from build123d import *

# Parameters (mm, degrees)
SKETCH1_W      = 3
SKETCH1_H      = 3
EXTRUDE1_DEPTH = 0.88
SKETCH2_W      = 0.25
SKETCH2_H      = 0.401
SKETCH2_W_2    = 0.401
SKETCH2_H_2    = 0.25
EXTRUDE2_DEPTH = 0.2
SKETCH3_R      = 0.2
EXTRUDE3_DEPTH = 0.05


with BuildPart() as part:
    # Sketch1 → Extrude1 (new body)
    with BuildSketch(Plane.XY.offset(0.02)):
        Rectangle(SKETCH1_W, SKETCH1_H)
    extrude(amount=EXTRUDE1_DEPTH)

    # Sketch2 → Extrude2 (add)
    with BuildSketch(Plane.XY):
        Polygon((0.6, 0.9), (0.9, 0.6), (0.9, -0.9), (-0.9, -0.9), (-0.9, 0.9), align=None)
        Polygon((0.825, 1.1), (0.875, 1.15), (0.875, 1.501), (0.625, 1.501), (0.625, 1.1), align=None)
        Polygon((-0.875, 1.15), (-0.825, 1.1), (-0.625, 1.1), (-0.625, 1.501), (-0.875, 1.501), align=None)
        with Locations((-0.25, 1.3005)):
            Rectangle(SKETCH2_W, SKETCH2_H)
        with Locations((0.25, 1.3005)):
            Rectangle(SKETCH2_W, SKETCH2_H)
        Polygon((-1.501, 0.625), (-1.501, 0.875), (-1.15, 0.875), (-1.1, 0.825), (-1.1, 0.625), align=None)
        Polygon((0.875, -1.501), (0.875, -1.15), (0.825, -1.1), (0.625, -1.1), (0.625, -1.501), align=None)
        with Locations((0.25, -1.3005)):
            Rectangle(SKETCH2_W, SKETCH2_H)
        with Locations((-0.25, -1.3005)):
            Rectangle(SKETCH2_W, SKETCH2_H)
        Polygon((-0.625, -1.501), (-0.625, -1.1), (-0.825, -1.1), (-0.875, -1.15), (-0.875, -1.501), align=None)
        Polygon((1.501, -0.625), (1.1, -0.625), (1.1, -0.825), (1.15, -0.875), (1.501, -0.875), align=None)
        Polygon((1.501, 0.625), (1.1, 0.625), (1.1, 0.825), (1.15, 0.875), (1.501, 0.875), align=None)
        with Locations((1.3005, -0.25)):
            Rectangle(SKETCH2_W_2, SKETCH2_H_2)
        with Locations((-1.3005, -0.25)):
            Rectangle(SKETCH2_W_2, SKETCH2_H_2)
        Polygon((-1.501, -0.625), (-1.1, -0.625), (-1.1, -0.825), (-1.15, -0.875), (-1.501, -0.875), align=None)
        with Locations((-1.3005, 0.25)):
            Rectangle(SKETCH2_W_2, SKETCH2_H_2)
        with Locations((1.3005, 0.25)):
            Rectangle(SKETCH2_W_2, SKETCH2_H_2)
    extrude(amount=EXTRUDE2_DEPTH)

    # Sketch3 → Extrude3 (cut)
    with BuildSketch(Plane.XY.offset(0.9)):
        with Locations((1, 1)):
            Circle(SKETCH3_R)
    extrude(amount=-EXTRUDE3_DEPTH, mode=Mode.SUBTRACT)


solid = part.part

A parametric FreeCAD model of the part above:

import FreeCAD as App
import Part
import Sketcher
from FreeCAD import Vector


def add_polygon(sketch, points):
    """Adds a closed chain of lines whose ends are joined by coincident constraints."""
    first, n = sketch.GeometryCount, len(points)
    for a, b in zip(points, points[1:] + points[:1]):
        sketch.addGeometry(Part.LineSegment(App.Vector(*a, 0), App.Vector(*b, 0)), False)
    for i in range(n):
        sketch.addConstraint(Sketcher.Constraint("Coincident", first + i, 2, first + (i + 1) % n, 1))

doc = App.newDocument("Part")
params = doc.addObject("Spreadsheet::Sheet", "Params")
for row, (alias, value) in enumerate([
    ("sketch1_width", "3 mm"),
    ("pad1_length", "0.88 mm"),
    ("sketch2_width", "1.5 mm"),
    ("sketch2_width2", "1.8 mm"),
    ("sketch2_width3", "0.2 mm"),
    ("sketch2_width4", "0.25 mm"),
    ("pad2_length", "0.2 mm"),
    ("sketch3_diameter", "0.4 mm"),
    ("pocket1_length", "0.05 mm"),
], start=1):
    params.set(f"A{row}", alias)
    params.set(f"B{row}", "=" + value)
    params.setAlias(f"B{row}", alias)

body = doc.addObject("PartDesign::Body", "Body")

sketch1 = doc.addObject("Sketcher::SketchObject", "Sketch")
body.addObject(sketch1)
sketch1.AttachmentSupport = (doc.XY_Plane, [""])
sketch1.MapMode = "FlatFace"
sketch1.AttachmentOffset = App.Placement(Vector(0, 0, 0.02), App.Rotation())
add_polygon(sketch1, [(-1.5, 1.5), (-1.5, -1.5), (1.5, -1.5), (1.5, 1.5)])
sketch1.addConstraint([
    Sketcher.Constraint("Vertical", 0),
    Sketcher.Constraint("Horizontal", 1),
    Sketcher.Constraint("Vertical", 2),
    Sketcher.Constraint("Horizontal", 3),
    Sketcher.Constraint("Symmetric", 0, 2, 2, 2, -1, 1),
    Sketcher.Constraint("Equal", 3, 0),
    Sketcher.Constraint("DistanceX", 1, 1, 1, 2, 3.0),
])
sketch1.setExpression("Constraints[10]", "Params.sketch1_width")
pad1 = doc.addObject("PartDesign::Pad", "Pad")
body.addObject(pad1)
pad1.Profile = sketch1
pad1.setExpression("Length", "Params.pad1_length")

sketch2 = doc.addObject("Sketcher::SketchObject", "Sketch001")
body.addObject(sketch2)
sketch2.AttachmentSupport = (doc.XY_Plane, [""])
sketch2.MapMode = "FlatFace"
add_polygon(sketch2, [(0.9, 0.6), (0.6, 0.9), (-0.9, 0.9), (-0.9, -0.9), (0.9, -0.9)])
add_polygon(sketch2, [(0.82, 1.1), (0.88, 1.15), (0.88, 1.5), (0.62, 1.5), (0.62, 1.1)])
add_polygon(sketch2, [(-0.88, 1.15), (-0.82, 1.1), (-0.62, 1.1), (-0.62, 1.5), (-0.88, 1.5)])
add_polygon(sketch2, [(-0.38, 1.5), (-0.38, 1.1), (-0.12, 1.1), (-0.12, 1.5)])
add_polygon(sketch2, [(0.12, 1.5), (0.12, 1.1), (0.38, 1.1), (0.38, 1.5)])
add_polygon(sketch2, [(-1.5, 0.88), (-1.5, 0.62), (-1.1, 0.62), (-1.1, 0.82), (-1.15, 0.88)])
add_polygon(sketch2, [(0.88, -1.5), (0.88, -1.15), (0.82, -1.1), (0.62, -1.1), (0.62, -1.5)])
add_polygon(sketch2, [(0.12, -1.1), (0.12, -1.5), (0.38, -1.5), (0.38, -1.1)])
add_polygon(sketch2, [(-0.38, -1.1), (-0.38, -1.5), (-0.12, -1.5), (-0.12, -1.1)])
add_polygon(sketch2, [(-0.62, -1.5), (-0.62, -1.1), (-0.82, -1.1), (-0.88, -1.15), (-0.88, -1.5)])
add_polygon(sketch2, [(1.5, -0.62), (1.1, -0.62), (1.1, -0.82), (1.15, -0.88), (1.5, -0.88)])
add_polygon(sketch2, [(1.1, 0.62), (1.5, 0.62), (1.5, 0.88), (1.15, 0.88), (1.1, 0.82)])
add_polygon(sketch2, [(1.1, -0.12), (1.1, -0.38), (1.5, -0.38), (1.5, -0.12)])
add_polygon(sketch2, [(-1.5, -0.12), (-1.5, -0.38), (-1.1, -0.38), (-1.1, -0.12)])
add_polygon(sketch2, [(-1.1, -0.62), (-1.5, -0.62), (-1.5, -0.88), (-1.15, -0.88), (-1.1, -0.82)])
add_polygon(sketch2, [(-1.5, 0.38), (-1.5, 0.12), (-1.1, 0.12), (-1.1, 0.38)])
add_polygon(sketch2, [(1.1, 0.38), (1.1, 0.12), (1.5, 0.12), (1.5, 0.38)])
sketch2.addConstraint([
    Sketcher.Constraint("Horizontal", 1),
    Sketcher.Constraint("Vertical", 2),
    Sketcher.Constraint("Horizontal", 3),
    Sketcher.Constraint("Vertical", 4),
    Sketcher.Constraint("Vertical", 6),
    Sketcher.Constraint("Horizontal", 7),
    Sketcher.Constraint("Vertical", 8),
    Sketcher.Constraint("Horizontal", 9),
    Sketcher.Constraint("Horizontal", 11),
    Sketcher.Constraint("Vertical", 12),
    Sketcher.Constraint("Horizontal", 13),
    Sketcher.Constraint("Vertical", 14),
    Sketcher.Constraint("Vertical", 15),
    Sketcher.Constraint("Horizontal", 16),
    Sketcher.Constraint("Vertical", 17),
    Sketcher.Constraint("Horizontal", 18),
    Sketcher.Constraint("Vertical", 19),
    Sketcher.Constraint("Horizontal", 20),
    Sketcher.Constraint("Vertical", 21),
    Sketcher.Constraint("Horizontal", 22),
    Sketcher.Constraint("Vertical", 23),
    Sketcher.Constraint("Horizontal", 24),
    Sketcher.Constraint("Vertical", 25),
    Sketcher.Constraint("Horizontal", 27),
    Sketcher.Constraint("Vertical", 28),
    Sketcher.Constraint("Horizontal", 30),
    Sketcher.Constraint("Vertical", 31),
    Sketcher.Constraint("Horizontal", 32),
    Sketcher.Constraint("Vertical", 33),
    Sketcher.Constraint("Horizontal", 34),
    Sketcher.Constraint("Vertical", 35),
    Sketcher.Constraint("Horizontal", 36),
    Sketcher.Constraint("Vertical", 37),
    Sketcher.Constraint("Horizontal", 38),
    Sketcher.Constraint("Vertical", 39),
    Sketcher.Constraint("Horizontal", 40),
    Sketcher.Constraint("Vertical", 41),
    Sketcher.Constraint("Horizontal", 42),
    Sketcher.Constraint("Vertical", 44),
    Sketcher.Constraint("Horizontal", 45),
    Sketcher.Constraint("Horizontal", 46),
    Sketcher.Constraint("Vertical", 47),
    Sketcher.Constraint("Horizontal", 49),
    Sketcher.Constraint("Vertical", 50),
    Sketcher.Constraint("Horizontal", 51),
    Sketcher.Constraint("Vertical", 52),
    Sketcher.Constraint("Horizontal", 53),
    Sketcher.Constraint("Vertical", 55),
    Sketcher.Constraint("Vertical", 56),
    Sketcher.Constraint("Horizontal", 57),
    Sketcher.Constraint("Vertical", 58),
    Sketcher.Constraint("Horizontal", 59),
    Sketcher.Constraint("Vertical", 60),
    Sketcher.Constraint("Horizontal", 61),
    Sketcher.Constraint("Vertical", 62),
    Sketcher.Constraint("Horizontal", 63),
    Sketcher.Constraint("Horizontal", 64),
    Sketcher.Constraint("Vertical", 65),
    Sketcher.Constraint("Horizontal", 66),
    Sketcher.Constraint("Vertical", 68),
    Sketcher.Constraint("Vertical", 69),
    Sketcher.Constraint("Horizontal", 70),
    Sketcher.Constraint("Vertical", 71),
    Sketcher.Constraint("Horizontal", 72),
    Sketcher.Constraint("Vertical", 73),
    Sketcher.Constraint("Horizontal", 74),
    Sketcher.Constraint("Vertical", 75),
    Sketcher.Constraint("Horizontal", 76),
    Sketcher.Constraint("Symmetric", 1, 2, 3, 2, -1, 1),
    Sketcher.Constraint("Symmetric", 14, 2, 28, 2, -1, 1),
    Sketcher.Constraint("Symmetric", 10, 2, 29, 2, -1, 1),
    Sketcher.Constraint("Symmetric", 12, 2, 31, 2, -1, 1),
    Sketcher.Constraint("Symmetric", 17, 2, 33, 2, -1, 1),
    Sketcher.Constraint("Symmetric", 15, 2, 35, 2, -1, 1),
    Sketcher.Constraint("Symmetric", 21, 2, 37, 2, -1, 1),
    Sketcher.Constraint("Symmetric", 19, 2, 39, 2, -1, 1),
    Sketcher.Constraint("Symmetric", 8, 2, 41, 2, -1, 1),
    Sketcher.Constraint("Symmetric", 5, 2, 43, 2, -1, 1),
    Sketcher.Constraint("Symmetric", 24, 2, 46, 2, -1, 1),
    Sketcher.Constraint("Symmetric", 26, 2, 48, 2, -1, 1),
    Sketcher.Constraint("Symmetric", 51, 2, 64, 2, -1, 1),
    Sketcher.Constraint("Symmetric", 53, 2, 66, 2, -1, 1),
    Sketcher.Constraint("Symmetric", 54, 2, 67, 2, -1, 1),
    Sketcher.Constraint("Symmetric", 58, 2, 69, 2, -1, 1),
    Sketcher.Constraint("Symmetric", 56, 2, 71, 2, -1, 1),
    Sketcher.Constraint("Symmetric", 62, 2, 73, 2, -1, 1),
    Sketcher.Constraint("Symmetric", 60, 2, 75, 2, -1, 1),
    Sketcher.Constraint("Symmetric", 9, 2, 10, 2, -2),
    Sketcher.Constraint("Symmetric", 7, 2, 12, 2, -2),
    Sketcher.Constraint("Symmetric", 5, 2, 14, 2, -2),
    Sketcher.Constraint("Symmetric", 16, 2, 19, 2, -2),
    Sketcher.Constraint("Symmetric", 18, 2, 21, 2, -2),
    Sketcher.Constraint("Symmetric", 23, 2, 51, 2, -2),
    Sketcher.Constraint("Symmetric", 26, 2, 53, 2, -2),
    Sketcher.Constraint("Symmetric", 25, 2, 54, 2, -2),
    Sketcher.Constraint("Symmetric", 57, 2, 60, 2, -2),
    Sketcher.Constraint("Symmetric", 59, 2, 62, 2, -2),
    Sketcher.Constraint("Perpendicular", 0, 5),
    Sketcher.Constraint("Perpendicular", 5, 10),
    Sketcher.Constraint("Parallel", 10, 26),
    Sketcher.Constraint("Perpendicular", 29, 43),
    Sketcher.Constraint("Perpendicular", 43, 48),
    Sketcher.Constraint("Horizontal", 11, 2, 15, 2),
    Sketcher.Constraint("Horizontal", 13, 2, 17, 2),
    Sketcher.Constraint("Horizontal", 38, 2, 44, 2),
    Sketcher.Constraint("Vertical", 50, 2, 51, 2),
    Sketcher.Constraint("Vertical", 55, 2, 56, 2),
    Sketcher.Constraint("Vertical", 52, 2, 57, 2),
    Sketcher.Constraint("Equal", 13, 16),
    Sketcher.Constraint("Equal", 3, 2),
    Sketcher.Constraint("Equal", 66, 6),
    Sketcher.Constraint("Equal", 76, 8),
    Sketcher.Constraint("Equal", 45, 23),
    Sketcher.Constraint("Equal", 52, 56),
    Sketcher.Constraint("DistanceX", 1, 2, 1, 1, 1.5),
    Sketcher.Constraint("DistanceX", 3, 1, 3, 2, 1.8),
    Sketcher.Constraint("DistanceX", 9, 1, 9, 2, 0.2),
    Sketcher.Constraint("DistanceX", 7, 2, 7, 1, 0.25),
    Sketcher.Constraint("DistanceY", -1, 1, 8, 2, 1.1),
    Sketcher.Constraint("DistanceX", 24, 2, -1, 1, 1.1),
    Sketcher.Constraint("DistanceX", 24, 1, 24, 2, 0.401),
    Sketcher.Constraint("DistanceX", -1, 1, 5, 2, 0.875),
    Sketcher.Constraint("DistanceX", 15, 2, -1, 1, 0.375),
    Sketcher.Constraint("DistanceY", -1, 1, 23, 2, 0.625),
    Sketcher.Constraint("DistanceY", 56, 2, -1, 1, 0.375),
])
sketch2.setExpression("Constraints[191]", "Params.sketch2_width")
sketch2.setExpression("Constraints[192]", "Params.sketch2_width2")
sketch2.setExpression("Constraints[193]", "Params.sketch2_width3")
sketch2.setExpression("Constraints[194]", "Params.sketch2_width4")
pad2 = doc.addObject("PartDesign::Pad", "Pad001")
body.addObject(pad2)
pad2.Profile = sketch2
pad2.setExpression("Length", "Params.pad2_length")

sketch3 = doc.addObject("Sketcher::SketchObject", "Sketch002")
body.addObject(sketch3)
sketch3.AttachmentSupport = (doc.XY_Plane, [""])
sketch3.MapMode = "FlatFace"
sketch3.AttachmentOffset = App.Placement(Vector(0, 0, 0.9), App.Rotation())
sketch3.addGeometry(Part.Circle(Vector(1, 1, 0), Vector(0, 0, 1), 0.2), False)
sketch3.addConstraint([
    Sketcher.Constraint("Diameter", 0, 0.4),
    Sketcher.Constraint("DistanceX", -1, 1, 0, 3, 1.0),
    Sketcher.Constraint("DistanceY", -1, 1, 0, 3, 1.0),
])
sketch3.setExpression("Constraints[0]", "Params.sketch3_diameter")
pocket1 = doc.addObject("PartDesign::Pocket", "Pocket")
body.addObject(pocket1)
pocket1.Profile = sketch3
pocket1.setExpression("Length", "Params.pocket1_length")

doc.recompute()
